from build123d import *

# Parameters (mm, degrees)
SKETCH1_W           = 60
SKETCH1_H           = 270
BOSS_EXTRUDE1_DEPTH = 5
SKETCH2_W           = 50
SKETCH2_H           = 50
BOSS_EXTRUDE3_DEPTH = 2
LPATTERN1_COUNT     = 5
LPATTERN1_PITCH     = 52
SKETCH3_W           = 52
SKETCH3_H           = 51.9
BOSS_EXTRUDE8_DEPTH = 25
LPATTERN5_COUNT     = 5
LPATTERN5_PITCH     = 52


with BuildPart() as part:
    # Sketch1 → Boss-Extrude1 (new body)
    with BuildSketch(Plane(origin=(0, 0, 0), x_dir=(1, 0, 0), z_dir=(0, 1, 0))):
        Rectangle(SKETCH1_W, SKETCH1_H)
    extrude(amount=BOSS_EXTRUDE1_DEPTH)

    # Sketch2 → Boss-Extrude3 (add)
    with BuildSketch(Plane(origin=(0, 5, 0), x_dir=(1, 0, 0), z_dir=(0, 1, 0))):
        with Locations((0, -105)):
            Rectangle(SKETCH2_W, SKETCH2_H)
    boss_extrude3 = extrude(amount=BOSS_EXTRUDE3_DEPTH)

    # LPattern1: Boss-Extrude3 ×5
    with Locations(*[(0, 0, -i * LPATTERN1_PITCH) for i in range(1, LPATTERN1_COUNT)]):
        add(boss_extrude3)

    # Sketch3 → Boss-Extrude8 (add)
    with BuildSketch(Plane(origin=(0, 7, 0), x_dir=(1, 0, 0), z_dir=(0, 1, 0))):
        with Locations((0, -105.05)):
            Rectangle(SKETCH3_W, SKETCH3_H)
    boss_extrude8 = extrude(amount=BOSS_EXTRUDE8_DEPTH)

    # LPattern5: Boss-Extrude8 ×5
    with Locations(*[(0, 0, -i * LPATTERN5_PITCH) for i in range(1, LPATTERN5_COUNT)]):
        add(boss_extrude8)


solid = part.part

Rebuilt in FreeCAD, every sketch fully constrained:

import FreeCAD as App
import Part
import Sketcher
Q = App.Units.Quantity


def add_polygon(sketch, points):
    """Adds a closed chain of lines whose ends are joined by coincident constraints."""
    first, n = sketch.GeometryCount, len(points)
    for a, b in zip(points, points[1:] + points[:1]):
        sketch.addGeometry(Part.LineSegment(App.Vector(*a, 0), App.Vector(*b, 0)), False)
    for i in range(n):
        sketch.addConstraint(Sketcher.Constraint("Coincident", first + i, 2, first + (i + 1) % n, 1))

doc = App.newDocument("Part")
body = doc.addObject("PartDesign::Body", "Body")

sketch1 = body.newObject("Sketcher::SketchObject", "Sketch")
sketch1.AttachmentSupport = (doc.getObject("XZ_Plane"), [""])
sketch1.MapMode = "FlatFace"
add_polygon(sketch1, [(-30, -135), (-30, 135), (30, 135), (30, -135)])
sketch1.addConstraint(Sketcher.Constraint("Vertical", 0))
sketch1.addConstraint(Sketcher.Constraint("Horizontal", 1))
sketch1.addConstraint(Sketcher.Constraint("Vertical", 2))
sketch1.addConstraint(Sketcher.Constraint("Horizontal", 3))
sketch1.addConstraint(Sketcher.Constraint("Symmetric", 0, 2, 2, 2, -1, 1))
sketch1.addConstraint(Sketcher.Constraint("DistanceX", 1, 1, 1, 2, Q("60 mm")))
sketch1.addConstraint(Sketcher.Constraint("DistanceY", 0, 1, 0, 2, Q("270 mm")))
pad1 = body.newObject("PartDesign::Pad", "Pad")
pad1.Profile = sketch1
pad1.Length = 5
pad1.Reversed = True

sketch2 = body.newObject("Sketcher::SketchObject", "Sketch001")
sketch2.AttachmentSupport = (doc.getObject("XZ_Plane"), [""])
sketch2.MapMode = "FlatFace"
sketch2.AttachmentOffset = App.Placement(App.Vector(0, 0, -5), App.Rotation())
add_polygon(sketch2, [(-25, 80), (-25, 130), (25, 130), (25, 80)])
sketch2.addConstraint(Sketcher.Constraint("Vertical", 0))
sketch2.addConstraint(Sketcher.Constraint("Horizontal", 1))
sketch2.addConstraint(Sketcher.Constraint("Vertical", 2))
sketch2.addConstraint(Sketcher.Constraint("Horizontal", 3))
sketch2.addConstraint(Sketcher.Constraint("Equal", 3, 0))
sketch2.addConstraint(Sketcher.Constraint("DistanceX", 1, 1, 1, 2, Q("50 mm")))
sketch2.addConstraint(Sketcher.Constraint("DistanceX", 0, 2, -1, 1, Q("25 mm")))
sketch2.addConstraint(Sketcher.Constraint("DistanceY", -1, 1, 0, 2, Q("130 mm")))
pad2 = body.newObject("PartDesign::Pad", "Pad001")
pad2.Profile = sketch2
pad2.Length = 2
pad2.Reversed = True
doc.recompute()

linearpattern = body.newObject("PartDesign::LinearPattern", "LinearPattern")
linearpattern.Originals = [pad2]
linearpattern.Direction = (doc.getObject("Z_Axis"), [""])
linearpattern.Mode = "offset"
linearpattern.Offset = 52
linearpattern.Occurrences = 5
linearpattern.Reversed = True
body.Tip = linearpattern

sketch3 = body.newObject("Sketcher::SketchObject", "Sketch002")
sketch3.AttachmentSupport = (doc.getObject("XZ_Plane"), [""])
sketch3.MapMode = "FlatFace"
sketch3.AttachmentOffset = App.Placement(App.Vector(0, 0, -7), App.Rotation())
add_polygon(sketch3, [(-26, 79), (-26, 131), (26, 131), (26, 79)])
sketch3.addConstraint(Sketcher.Constraint("Vertical", 0))
sketch3.addConstraint(Sketcher.Constraint("Horizontal", 1))
sketch3.addConstraint(Sketcher.Constraint("Vertical", 2))
sketch3.addConstraint(Sketcher.Constraint("Horizontal", 3))
sketch3.addConstraint(Sketcher.Constraint("DistanceX", 1, 1, 1, 2, Q("52 mm")))
sketch3.addConstraint(Sketcher.Constraint("DistanceY", 0, 1, 0, 2, Q("51.9 mm")))
sketch3.addConstraint(Sketcher.Constraint("DistanceX", 0, 2, -1, 1, Q("26 mm")))
sketch3.addConstraint(Sketcher.Constraint("DistanceY", -1, 1, 0, 2, Q("131 mm")))
pad3 = body.newObject("PartDesign::Pad", "Pad002")
pad3.Profile = sketch3
pad3.Length = 25
pad3.Reversed = True
doc.recompute()

linearpattern2 = body.newObject("PartDesign::LinearPattern", "LinearPattern001")
linearpattern2.Originals = [pad3]
linearpattern2.Direction = (doc.getObject("Z_Axis"), [""])
linearpattern2.Mode = "offset"
linearpattern2.Offset = 52
linearpattern2.Occurrences = 5
linearpattern2.Reversed = True
body.Tip = linearpattern2

doc.recompute()
